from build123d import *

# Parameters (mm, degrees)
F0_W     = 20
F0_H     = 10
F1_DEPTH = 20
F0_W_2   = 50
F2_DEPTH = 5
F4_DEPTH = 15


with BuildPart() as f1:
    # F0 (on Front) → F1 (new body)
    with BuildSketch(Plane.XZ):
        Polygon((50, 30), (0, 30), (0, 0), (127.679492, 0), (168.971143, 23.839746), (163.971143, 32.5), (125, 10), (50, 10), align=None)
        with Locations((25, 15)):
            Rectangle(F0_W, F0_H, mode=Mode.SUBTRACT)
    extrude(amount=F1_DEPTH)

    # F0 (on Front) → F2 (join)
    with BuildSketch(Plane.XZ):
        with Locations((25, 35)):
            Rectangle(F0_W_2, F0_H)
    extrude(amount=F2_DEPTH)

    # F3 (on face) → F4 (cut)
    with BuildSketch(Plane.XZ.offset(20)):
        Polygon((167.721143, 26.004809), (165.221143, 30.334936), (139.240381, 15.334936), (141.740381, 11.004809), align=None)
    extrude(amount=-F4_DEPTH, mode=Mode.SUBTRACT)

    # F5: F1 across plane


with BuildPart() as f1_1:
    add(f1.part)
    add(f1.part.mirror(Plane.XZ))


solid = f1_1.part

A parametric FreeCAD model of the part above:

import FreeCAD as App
import Part
import Sketcher

V = App.Vector
Q = App.Units.Quantity

doc = App.newDocument("Part")
body = doc.addObject("PartDesign::Body", "Body")

# Sketch on XZ plane
sketch1 = doc.addObject("Sketcher::SketchObject", "Sketch")
body.addObject(sketch1)
sketch1.AttachmentSupport = (doc.XZ_Plane, [""])
sketch1.MapMode = "FlatFace"
sketch1.addGeometry(Part.LineSegment(V(50, 30, 0), V(0, 30, 0)), False)
sketch1.addGeometry(Part.LineSegment(V(0, 30, 0), V(0, 0, 0)), False)
sketch1.addGeometry(Part.LineSegment(V(0, 0, 0), V(127.679492, 0, 0)), False)
sketch1.addGeometry(Part.LineSegment(V(127.679492, 0, 0), V(168.971143, 23.839746, 0)), False)
sketch1.addGeometry(Part.LineSegment(V(168.971143, 23.839746, 0), V(163.971143, 32.5, 0)), False)
sketch1.addGeometry(Part.LineSegment(V(163.971143, 32.5, 0), V(125, 10, 0)), False)
sketch1.addGeometry(Part.LineSegment(V(125, 10, 0), V(50, 10, 0)), False)
sketch1.addGeometry(Part.LineSegment(V(50, 10, 0), V(50, 30, 0)), False)
sketch1.addGeometry(Part.LineSegment(V(35, 10, 0), V(15, 10, 0)), False)
sketch1.addGeometry(Part.LineSegment(V(15, 10, 0), V(15, 20, 0)), False)
sketch1.addGeometry(Part.LineSegment(V(15, 20, 0), V(35, 20, 0)), False)
sketch1.addGeometry(Part.LineSegment(V(35, 20, 0), V(35, 10, 0)), False)
sketch1.addConstraint(Sketcher.Constraint("Coincident", 0, 2, 1, 1))
sketch1.addConstraint(Sketcher.Constraint("Coincident", 1, 2, 2, 1))
sketch1.addConstraint(Sketcher.Constraint("Coincident", 2, 2, 3, 1))
sketch1.addConstraint(Sketcher.Constraint("Coincident", 3, 2, 4, 1))
sketch1.addConstraint(Sketcher.Constraint("Coincident", 4, 2, 5, 1))
sketch1.addConstraint(Sketcher.Constraint("Coincident", 5, 2, 6, 1))
sketch1.addConstraint(Sketcher.Constraint("Coincident", 6, 2, 7, 1))
sketch1.addConstraint(Sketcher.Constraint("Coincident", 7, 2, 0, 1))
sketch1.addConstraint(Sketcher.Constraint("Coincident", 8, 2, 9, 1))
sketch1.addConstraint(Sketcher.Constraint("Coincident", 9, 2, 10, 1))
sketch1.addConstraint(Sketcher.Constraint("Coincident", 10, 2, 11, 1))
sketch1.addConstraint(Sketcher.Constraint("Coincident", 11, 2, 8, 1))
sketch1.addConstraint(Sketcher.Constraint("Horizontal", 0))
sketch1.addConstraint(Sketcher.Constraint("Vertical", 1))
sketch1.addConstraint(Sketcher.Constraint("Horizontal", 2))
sketch1.addConstraint(Sketcher.Constraint("Horizontal", 6))
sketch1.addConstraint(Sketcher.Constraint("Vertical", 7))
sketch1.addConstraint(Sketcher.Constraint("Horizontal", 8))
sketch1.addConstraint(Sketcher.Constraint("Vertical", 9))
sketch1.addConstraint(Sketcher.Constraint("Horizontal", 10))
sketch1.addConstraint(Sketcher.Constraint("Vertical", 11))
sketch1.addConstraint(Sketcher.Constraint("Coincident", 1, 2, -1, 1))
sketch1.addConstraint(Sketcher.Constraint("Perpendicular", 3, 4))
sketch1.addConstraint(Sketcher.Constraint("Perpendicular", 4, 5))
sketch1.addConstraint(Sketcher.Constraint("Horizontal", 6, 2, 8, 2))
sketch1.addConstraint(Sketcher.Constraint("Equal", 10, 7))
sketch1.addConstraint(Sketcher.Constraint("DistanceX", 0, 2, 0, 1, Q("50 mm")))
sketch1.addConstraint(Sketcher.Constraint("DistanceX", 6, 2, 6, 1, Q("75 mm")))
sketch1.addConstraint(Sketcher.Constraint("DistanceX", 8, 2, 8, 1, Q("20 mm")))
sketch1.addConstraint(Sketcher.Constraint("DistanceY", 1, 2, 1, 1, Q("30 mm")))
sketch1.addConstraint(Sketcher.Constraint("DistanceY", 9, 1, 9, 2, Q("10 mm")))
sketch1.addConstraint(Sketcher.Constraint("Angle", 3, Q("30 deg")))
sketch1.addConstraint(Sketcher.Constraint("Distance", 4, Q("10 mm")))
sketch1.addConstraint(Sketcher.Constraint("Distance", 5, Q("45 mm")))
sketch1.addConstraint(Sketcher.Constraint("DistanceX", -1, 1, 8, 2, Q("15 mm")))
pad1 = doc.addObject("PartDesign::Pad", "Pad")
body.addObject(pad1)
pad1.Profile = sketch1
pad1.Length = 20

# Sketch on XZ plane
sketch2 = doc.addObject("Sketcher::SketchObject", "Sketch001")
body.addObject(sketch2)
sketch2.AttachmentSupport = (doc.XZ_Plane, [""])
sketch2.MapMode = "FlatFace"
sketch2.addGeometry(Part.LineSegment(V(0, 40, 0), V(0, 30, 0)), False)
sketch2.addGeometry(Part.LineSegment(V(0, 30, 0), V(50, 30, 0)), False)
sketch2.addGeometry(Part.LineSegment(V(50, 30, 0), V(50, 40, 0)), False)
sketch2.addGeometry(Part.LineSegment(V(50, 40, 0), V(0, 40, 0)), False)
sketch2.addConstraint(Sketcher.Constraint("Coincident", 0, 2, 1, 1))
sketch2.addConstraint(Sketcher.Constraint("Coincident", 1, 2, 2, 1))
sketch2.addConstraint(Sketcher.Constraint("Coincident", 2, 2, 3, 1))
sketch2.addConstraint(Sketcher.Constraint("Coincident", 3, 2, 0, 1))
sketch2.addConstraint(Sketcher.Constraint("Vertical", 0))
sketch2.addConstraint(Sketcher.Constraint("Horizontal", 1))
sketch2.addConstraint(Sketcher.Constraint("Vertical", 2))
sketch2.addConstraint(Sketcher.Constraint("Horizontal", 3))
sketch2.addConstraint(Sketcher.Constraint("PointOnObject", 0, 2, -2))
sketch2.addConstraint(Sketcher.Constraint("DistanceX", 1, 1, 1, 2, Q("50 mm")))
sketch2.addConstraint(Sketcher.Constraint("DistanceY", 0, 2, 0, 1, Q("10 mm")))
sketch2.addConstraint(Sketcher.Constraint("DistanceY", -1, 1, 0, 2, Q("30 mm")))
pad2 = doc.addObject("PartDesign::Pad", "Pad001")
body.addObject(pad2)
pad2.Profile = sketch2
pad2.Length = 5

# Sketch on XZ plane
sketch3 = doc.addObject("Sketcher::SketchObject", "Sketch002")
body.addObject(sketch3)
sketch3.AttachmentSupport = (doc.XZ_Plane, [""])
sketch3.MapMode = "FlatFace"
sketch3.AttachmentOffset = App.Placement(V(0, 0, 20), App.Rotation())
sketch3.addGeometry(Part.LineSegment(V(167.721143, 26.004809, 0), V(165.221143, 30.334936, 0)), False)
sketch3.addGeometry(Part.LineSegment(V(165.221143, 30.334936, 0), V(139.240381, 15.334936, 0)), False)
sketch3.addGeometry(Part.LineSegment(V(139.240381, 15.334936, 0), V(141.740381, 11.004809, 0)), False)
sketch3.addGeometry(Part.LineSegment(V(141.740381, 11.004809, 0), V(167.721143, 26.004809, 0)), False)
sketch3.addConstraint(Sketcher.Constraint("Coincident", 0, 2, 1, 1))
sketch3.addConstraint(Sketcher.Constraint("Coincident", 1, 2, 2, 1))
sketch3.addConstraint(Sketcher.Constraint("Coincident", 2, 2, 3, 1))
sketch3.addConstraint(Sketcher.Constraint("Coincident", 3, 2, 0, 1))
sketch3.addConstraint(Sketcher.Constraint("Perpendicular", 0, 1))
sketch3.addConstraint(Sketcher.Constraint("Perpendicular", 1, 2))
sketch3.addConstraint(Sketcher.Constraint("Perpendicular", 2, 3))
sketch3.addConstraint(Sketcher.Constraint("Angle", 0, Q("120 deg")))
sketch3.addConstraint(Sketcher.Constraint("Distance", 0, Q("5 mm")))
sketch3.addConstraint(Sketcher.Constraint("Distance", 1, Q("30 mm")))
sketch3.addConstraint(Sketcher.Constraint("DistanceX", -1, 1, 1, 2, Q("139.240381 mm")))
sketch3.addConstraint(Sketcher.Constraint("DistanceY", -1, 1, 2, 2, Q("11.004809 mm")))
pocket1 = doc.addObject("PartDesign::Pocket", "Pocket")
body.addObject(pocket1)
pocket1.Profile = sketch3
pocket1.Length = 15
body2 = doc.addObject("PartDesign::Body", "Body001")
doc.recompute()

body2.BaseFeature = body
doc.recompute()

mirroring = doc.addObject("Part::Mirroring", "Mirroring")
mirroring.Source = body
mirroring.Base = V(0, 0, 0)
mirroring.Normal = V(0, -1, 0)
body3 = doc.addObject("PartDesign::Body", "Body002")
body3.BaseFeature = mirroring
boolean = doc.addObject("PartDesign::Boolean", "Boolean")
body2.addObject(boolean)
boolean.Type = "Fuse"
boolean.addObjects([body3])
doc.recompute()
mirroring.Visibility = False

doc.recompute()
